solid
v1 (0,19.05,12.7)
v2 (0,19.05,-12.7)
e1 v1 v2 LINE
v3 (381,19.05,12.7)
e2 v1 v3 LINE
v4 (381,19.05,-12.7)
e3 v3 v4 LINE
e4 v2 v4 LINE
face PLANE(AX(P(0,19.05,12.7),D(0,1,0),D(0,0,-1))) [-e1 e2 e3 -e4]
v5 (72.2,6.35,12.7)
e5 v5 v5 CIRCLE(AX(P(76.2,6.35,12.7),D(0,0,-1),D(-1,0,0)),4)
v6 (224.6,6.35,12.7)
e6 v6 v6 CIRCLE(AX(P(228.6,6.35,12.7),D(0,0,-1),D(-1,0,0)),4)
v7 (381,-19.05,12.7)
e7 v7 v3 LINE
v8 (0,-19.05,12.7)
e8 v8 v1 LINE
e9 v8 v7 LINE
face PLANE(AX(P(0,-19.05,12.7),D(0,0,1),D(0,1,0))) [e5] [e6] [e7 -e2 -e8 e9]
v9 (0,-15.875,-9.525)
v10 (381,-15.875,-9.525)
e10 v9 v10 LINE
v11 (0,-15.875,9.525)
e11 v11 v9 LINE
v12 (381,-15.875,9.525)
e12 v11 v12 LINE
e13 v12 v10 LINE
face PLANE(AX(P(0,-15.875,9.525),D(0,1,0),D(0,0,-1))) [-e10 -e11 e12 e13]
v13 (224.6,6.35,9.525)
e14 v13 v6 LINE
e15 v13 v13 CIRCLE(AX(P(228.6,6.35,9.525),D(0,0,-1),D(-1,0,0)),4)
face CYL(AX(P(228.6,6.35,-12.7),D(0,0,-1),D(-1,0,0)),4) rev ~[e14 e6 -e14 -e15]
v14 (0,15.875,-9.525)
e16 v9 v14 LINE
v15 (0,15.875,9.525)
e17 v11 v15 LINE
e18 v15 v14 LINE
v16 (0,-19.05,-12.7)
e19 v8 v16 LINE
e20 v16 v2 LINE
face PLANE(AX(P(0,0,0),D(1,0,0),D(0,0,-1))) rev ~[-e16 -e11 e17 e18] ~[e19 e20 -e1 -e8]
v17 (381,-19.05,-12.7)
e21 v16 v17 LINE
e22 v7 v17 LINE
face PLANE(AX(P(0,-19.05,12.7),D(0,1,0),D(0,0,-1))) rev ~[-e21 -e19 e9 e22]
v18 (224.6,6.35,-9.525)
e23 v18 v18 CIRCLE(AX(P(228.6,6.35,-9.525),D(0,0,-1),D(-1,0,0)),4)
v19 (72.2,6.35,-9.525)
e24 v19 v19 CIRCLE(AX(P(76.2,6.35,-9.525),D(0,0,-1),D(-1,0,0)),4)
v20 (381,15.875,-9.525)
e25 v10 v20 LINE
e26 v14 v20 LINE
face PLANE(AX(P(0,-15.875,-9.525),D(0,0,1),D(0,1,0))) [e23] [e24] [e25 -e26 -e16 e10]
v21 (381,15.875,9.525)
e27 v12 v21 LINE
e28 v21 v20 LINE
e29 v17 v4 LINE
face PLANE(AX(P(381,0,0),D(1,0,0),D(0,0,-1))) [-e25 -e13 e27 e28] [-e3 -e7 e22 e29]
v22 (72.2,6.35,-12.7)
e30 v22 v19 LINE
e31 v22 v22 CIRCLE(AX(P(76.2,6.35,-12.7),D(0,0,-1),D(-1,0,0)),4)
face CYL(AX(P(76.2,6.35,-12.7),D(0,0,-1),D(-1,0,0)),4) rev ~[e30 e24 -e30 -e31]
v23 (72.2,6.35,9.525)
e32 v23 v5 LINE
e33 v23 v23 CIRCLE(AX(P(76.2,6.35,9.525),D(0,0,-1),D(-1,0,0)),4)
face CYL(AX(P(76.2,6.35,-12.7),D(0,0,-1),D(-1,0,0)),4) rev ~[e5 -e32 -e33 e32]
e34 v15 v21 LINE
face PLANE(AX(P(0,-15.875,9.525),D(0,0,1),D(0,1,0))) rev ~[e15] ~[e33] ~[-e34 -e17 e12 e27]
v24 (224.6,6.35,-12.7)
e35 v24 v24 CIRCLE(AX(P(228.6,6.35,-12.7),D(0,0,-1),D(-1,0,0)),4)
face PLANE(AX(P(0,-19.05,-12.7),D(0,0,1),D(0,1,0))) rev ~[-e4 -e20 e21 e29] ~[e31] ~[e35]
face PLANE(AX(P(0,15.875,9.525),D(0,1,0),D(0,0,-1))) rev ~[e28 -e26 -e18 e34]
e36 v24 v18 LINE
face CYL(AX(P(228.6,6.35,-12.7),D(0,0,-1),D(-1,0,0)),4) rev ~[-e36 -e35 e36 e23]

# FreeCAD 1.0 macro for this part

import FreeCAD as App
import Part
import Sketcher
Q = App.Units.Quantity

doc = App.newDocument("Part")
params = doc.addObject("Spreadsheet::Sheet", "Params")
for row, (alias, value) in enumerate([
    ("sketch1_height", "1 in"),
    ("sketch1_width", "1.5 in"),
    ("sketch1_width2", "1.25 in"),
    ("sketch1_height2", "0.75 in"),
    ("pad1_length", "15 in"),
], start=1):
    params.set(f"A{row}", alias)
    params.set(f"B{row}", "=" + value)
    params.setAlias(f"B{row}", alias)

body = doc.addObject("PartDesign::Body", "Body")

# Sketch on YZ plane
sketch1 = body.newObject("Sketcher::SketchObject", "Sketch")
sketch1.AttachmentSupport = (doc.getObject("YZ_Plane"), [""])
sketch1.MapMode = "FlatFace"
sketch1.addGeometry([
    Part.LineSegment(App.Vector(19.05, 12.7, 0), App.Vector(-19.05, 12.7, 0)),  # 0
    Part.LineSegment(App.Vector(-19.05, 12.7, 0), App.Vector(-19.05, -12.7, 0)),  # 1
    Part.LineSegment(App.Vector(-19.05, -12.7, 0), App.Vector(19.05, -12.7, 0)),  # 2
    Part.LineSegment(App.Vector(19.05, -12.7, 0), App.Vector(19.05, 12.7, 0)),  # 3
    Part.LineSegment(App.Vector(-15.875, -9.525, 0), App.Vector(-15.875, 9.525, 0)),  # 4
    Part.LineSegment(App.Vector(-15.875, 9.525, 0), App.Vector(15.875, 9.525, 0)),  # 5
    Part.LineSegment(App.Vector(15.875, 9.525, 0), App.Vector(15.875, -9.525, 0)),  # 6
    Part.LineSegment(App.Vector(15.875, -9.525, 0), App.Vector(-15.875, -9.525, 0)),  # 7
], False)
sketch1.addConstraint([
    Sketcher.Constraint("Coincident", 0, 2, 1, 1),
    Sketcher.Constraint("Coincident", 1, 2, 2, 1),
    Sketcher.Constraint("Coincident", 2, 2, 3, 1),
    Sketcher.Constraint("Coincident", 3, 2, 0, 1),
    Sketcher.Constraint("Coincident", 4, 2, 5, 1),
    Sketcher.Constraint("Coincident", 5, 2, 6, 1),
    Sketcher.Constraint("Coincident", 6, 2, 7, 1),
    Sketcher.Constraint("Coincident", 7, 2, 4, 1),
    Sketcher.Constraint("Horizontal", 0),
    Sketcher.Constraint("Vertical", 1),
    Sketcher.Constraint("Horizontal", 2),
    Sketcher.Constraint("Vertical", 3),
    Sketcher.Constraint("Vertical", 4),
    Sketcher.Constraint("Horizontal", 5),
    Sketcher.Constraint("Vertical", 6),
    Sketcher.Constraint("Horizontal", 7),
    Sketcher.Constraint("Symmetric", 0, 2, 2, 2, -1, 1),
    Sketcher.Constraint("Symmetric", 4, 2, 6, 2, -1, 1),
    Sketcher.Constraint("DistanceY", 1, 2, 1, 1, Q("1 in")),
    Sketcher.Constraint("DistanceX", 0, 2, 0, 1, Q("1.5 in")),
    Sketcher.Constraint("DistanceX", 5, 1, 5, 2, Q("1.25 in")),
    Sketcher.Constraint("DistanceY", 4, 1, 4, 2, Q("0.75 in")),
])
sketch1.setExpression("Constraints[18]", "Params.sketch1_height")
sketch1.setExpression("Constraints[19]", "Params.sketch1_width")
sketch1.setExpression("Constraints[20]", "Params.sketch1_width2")
sketch1.setExpression("Constraints[21]", "Params.sketch1_height2")
pad1 = body.newObject("PartDesign::Pad", "Pad")
pad1.Profile = sketch1
pad1.setExpression("Length", "Params.pad1_length")

# Sketch on XY plane
sketch2 = body.newObject("Sketcher::SketchObject", "Sketch001")
sketch2.AttachmentSupport = (doc.getObject("XY_Plane"), [""])
sketch2.MapMode = "FlatFace"
sketch2.AttachmentOffset = App.Placement(App.Vector(0, 0, -0.5 * 25.4), App.Rotation())
sketch2.addGeometry([
    Part.Circle(App.Vector(76.2, 6.35, 0), App.Vector(0, 0, 1), 4),
    Part.Circle(App.Vector(228.6, 6.35, 0), App.Vector(0, 0, 1), 4),
], False)
sketch2.addConstraint([
    Sketcher.Constraint("Equal", 0, 1),
    Sketcher.Constraint("Horizontal", 0, 3, 1, 3),
    Sketcher.Constraint("DistanceX", -1, 1, 0, 3, Q("3 in")),
    Sketcher.Constraint("DistanceX", -1, 1, 1, 3, Q("9 in")),
    Sketcher.Constraint("Diameter", 0, Q("8 mm")),
    Sketcher.Constraint("DistanceY", -1, 1, 0, 3, Q("0.25 in")),
])
pocket1 = body.newObject("PartDesign::Pocket", "Pocket")
pocket1.Profile = sketch2
pocket1.Type = "ThroughAll"
pocket1.Reversed = True

doc.recompute()
